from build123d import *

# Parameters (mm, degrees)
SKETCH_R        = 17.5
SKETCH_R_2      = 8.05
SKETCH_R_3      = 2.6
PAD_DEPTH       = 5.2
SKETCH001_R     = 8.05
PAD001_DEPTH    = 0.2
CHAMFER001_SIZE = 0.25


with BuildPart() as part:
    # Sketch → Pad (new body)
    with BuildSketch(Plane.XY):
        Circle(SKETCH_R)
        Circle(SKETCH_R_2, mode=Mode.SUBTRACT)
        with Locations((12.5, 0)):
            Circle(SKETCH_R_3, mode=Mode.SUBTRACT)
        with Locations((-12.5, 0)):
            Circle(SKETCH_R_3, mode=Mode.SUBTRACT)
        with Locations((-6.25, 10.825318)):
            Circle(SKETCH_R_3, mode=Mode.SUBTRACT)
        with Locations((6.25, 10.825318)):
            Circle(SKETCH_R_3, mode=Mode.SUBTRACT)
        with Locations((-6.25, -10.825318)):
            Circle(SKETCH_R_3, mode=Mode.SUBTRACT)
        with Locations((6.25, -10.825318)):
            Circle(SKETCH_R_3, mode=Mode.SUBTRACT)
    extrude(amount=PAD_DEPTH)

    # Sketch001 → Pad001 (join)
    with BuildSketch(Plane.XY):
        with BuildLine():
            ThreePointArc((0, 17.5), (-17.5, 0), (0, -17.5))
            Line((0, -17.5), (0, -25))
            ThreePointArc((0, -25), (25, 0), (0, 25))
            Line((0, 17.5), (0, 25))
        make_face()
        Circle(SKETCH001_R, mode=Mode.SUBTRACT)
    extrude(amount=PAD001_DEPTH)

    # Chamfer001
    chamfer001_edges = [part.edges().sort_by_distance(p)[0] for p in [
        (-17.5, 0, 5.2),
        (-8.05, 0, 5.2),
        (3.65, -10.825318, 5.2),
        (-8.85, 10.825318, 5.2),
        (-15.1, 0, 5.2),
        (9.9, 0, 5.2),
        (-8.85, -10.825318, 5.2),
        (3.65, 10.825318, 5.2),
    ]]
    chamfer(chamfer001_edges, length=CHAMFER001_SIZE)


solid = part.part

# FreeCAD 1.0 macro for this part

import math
import FreeCAD as App
import Part
import Sketcher
Q = App.Units.Quantity


def edges_at(feature, points):
    """Names of the edges that pass closest to the given points."""
    edges = feature.Shape.Edges
    near = lambda p: min(range(len(edges)), key=lambda i: edges[i].distToShape(Part.Vertex(*p))[0])
    return sorted({f"Edge{near(p) + 1}" for p in points})

doc = App.newDocument("Part")
body = doc.addObject("PartDesign::Body", "Body")

sketch1 = body.newObject("Sketcher::SketchObject", "Sketch")
sketch1.AttachmentSupport = (doc.getObject("XY_Plane"), [""])
sketch1.MapMode = "FlatFace"
sketch1.addGeometry([
    Part.Circle(App.Vector(0, 0, 0), App.Vector(0, 0, 1), 17.5),
    Part.Circle(App.Vector(-6.25, -10.825318, 0), App.Vector(0, 0, 1), 2.6),
    Part.Circle(App.Vector(6.25, -10.825318, 0), App.Vector(0, 0, 1), 2.6),
    Part.Circle(App.Vector(-12.5, 0, 0), App.Vector(0, 0, 1), 2.6),
    Part.Circle(App.Vector(-6.25, 10.825318, 0), App.Vector(0, 0, 1), 2.6),
    Part.Circle(App.Vector(0, 0, 0), App.Vector(0, 0, 1), 8.05),
    Part.Circle(App.Vector(12.5, 0, 0), App.Vector(0, 0, 1), 2.6),
    Part.Circle(App.Vector(6.25, 10.825318, 0), App.Vector(0, 0, 1), 2.6),
], False)
sketch1.addConstraint([
    Sketcher.Constraint("Coincident", 0, 3, -1, 1),
    Sketcher.Constraint("Coincident", 5, 3, -1, 1),
    Sketcher.Constraint("Equal", 1, 2),
    Sketcher.Constraint("Equal", 2, 3),
    Sketcher.Constraint("Equal", 3, 4),
    Sketcher.Constraint("Equal", 4, 6),
    Sketcher.Constraint("Equal", 6, 7),
    Sketcher.Constraint("Symmetric", 2, 3, 4, 3, -1, 1),
    Sketcher.Constraint("Symmetric", 3, 3, 6, 3, -1, 1),
    Sketcher.Constraint("Symmetric", 1, 3, 7, 3, -1, 1),
    Sketcher.Constraint("Symmetric", 1, 3, 2, 3, -2),
    Sketcher.Constraint("PointOnObject", 3, 3, -1),
    Sketcher.Constraint("Diameter", 0, Q("35 mm")),
    Sketcher.Constraint("Diameter", 1, Q("5.2 mm")),
    Sketcher.Constraint("Diameter", 5, Q("16.1 mm")),
    Sketcher.Constraint("DistanceX", 3, 3, -1, 1, Q("12.5 mm")),
    Sketcher.Constraint("DistanceX", 1, 3, 2, 3, Q("12.5 mm")),
    Sketcher.Constraint("DistanceY", 1, 3, -1, 1, Q("10.825318 mm")),
])
pad1 = body.newObject("PartDesign::Pad", "Pad")
pad1.Profile = sketch1
pad1.Length = 5.2

sketch2 = body.newObject("Sketcher::SketchObject", "Sketch001")
sketch2.AttachmentSupport = (doc.getObject("XY_Plane"), [""])
sketch2.MapMode = "FlatFace"
sketch2.addGeometry([
    Part.ArcOfCircle(Part.Circle(App.Vector(0, 0, 0), App.Vector(0, 0, 1), 17.5), math.radians(90), math.radians(270)),
    Part.LineSegment(App.Vector(0, -17.5, 0), App.Vector(0, -25, 0)),
    Part.ArcOfCircle(Part.Circle(App.Vector(0, 0, 0), App.Vector(0, 0, 1), 25), math.radians(-90), math.radians(90)),
    Part.LineSegment(App.Vector(0, 25, 0), App.Vector(0, 17.5, 0)),
    Part.Circle(App.Vector(0, 0, 0), App.Vector(0, 0, 1), 8.05),
], False)
sketch2.addConstraint([
    Sketcher.Constraint("Coincident", 0, 2, 1, 1),
    Sketcher.Constraint("Coincident", 1, 2, 2, 1),
    Sketcher.Constraint("Coincident", 2, 2, 3, 1),
    Sketcher.Constraint("Coincident", 3, 2, 0, 1),
    Sketcher.Constraint("Vertical", 1),
    Sketcher.Constraint("Vertical", 3),
    Sketcher.Constraint("Coincident", 0, 3, -1, 1),
    Sketcher.Constraint("Coincident", 2, 3, -1, 1),
    Sketcher.Constraint("Coincident", 4, 3, -1, 1),
    Sketcher.Constraint("PointOnObject", 0, 2, -2),
    Sketcher.Constraint("PointOnObject", 2, 2, -2),
    Sketcher.Constraint("Radius", 2, Q("25 mm")),
    Sketcher.Constraint("Diameter", 4, Q("16.1 mm")),
    Sketcher.Constraint("Radius", 0, Q("17.5 mm")),
])
pad2 = body.newObject("PartDesign::Pad", "Pad001")
pad2.Profile = sketch2
pad2.Length = 0.2
doc.recompute()

chamfer = body.newObject("PartDesign::Chamfer", "Chamfer")
chamfer.Base = (pad2, edges_at(pad2, [
    (-17.5, 0, 5.2),
    (-8.05, 0, 5.2),
    (3.65, -10.825, 5.2),
    (-8.85, 10.825, 5.2),
    (-15.1, 0, 5.2),
    (9.9, 0, 5.2),
    (-8.85, -10.825, 5.2),
    (3.65, 10.825, 5.2),
]))
chamfer.Size = 0.25

doc.recompute()
